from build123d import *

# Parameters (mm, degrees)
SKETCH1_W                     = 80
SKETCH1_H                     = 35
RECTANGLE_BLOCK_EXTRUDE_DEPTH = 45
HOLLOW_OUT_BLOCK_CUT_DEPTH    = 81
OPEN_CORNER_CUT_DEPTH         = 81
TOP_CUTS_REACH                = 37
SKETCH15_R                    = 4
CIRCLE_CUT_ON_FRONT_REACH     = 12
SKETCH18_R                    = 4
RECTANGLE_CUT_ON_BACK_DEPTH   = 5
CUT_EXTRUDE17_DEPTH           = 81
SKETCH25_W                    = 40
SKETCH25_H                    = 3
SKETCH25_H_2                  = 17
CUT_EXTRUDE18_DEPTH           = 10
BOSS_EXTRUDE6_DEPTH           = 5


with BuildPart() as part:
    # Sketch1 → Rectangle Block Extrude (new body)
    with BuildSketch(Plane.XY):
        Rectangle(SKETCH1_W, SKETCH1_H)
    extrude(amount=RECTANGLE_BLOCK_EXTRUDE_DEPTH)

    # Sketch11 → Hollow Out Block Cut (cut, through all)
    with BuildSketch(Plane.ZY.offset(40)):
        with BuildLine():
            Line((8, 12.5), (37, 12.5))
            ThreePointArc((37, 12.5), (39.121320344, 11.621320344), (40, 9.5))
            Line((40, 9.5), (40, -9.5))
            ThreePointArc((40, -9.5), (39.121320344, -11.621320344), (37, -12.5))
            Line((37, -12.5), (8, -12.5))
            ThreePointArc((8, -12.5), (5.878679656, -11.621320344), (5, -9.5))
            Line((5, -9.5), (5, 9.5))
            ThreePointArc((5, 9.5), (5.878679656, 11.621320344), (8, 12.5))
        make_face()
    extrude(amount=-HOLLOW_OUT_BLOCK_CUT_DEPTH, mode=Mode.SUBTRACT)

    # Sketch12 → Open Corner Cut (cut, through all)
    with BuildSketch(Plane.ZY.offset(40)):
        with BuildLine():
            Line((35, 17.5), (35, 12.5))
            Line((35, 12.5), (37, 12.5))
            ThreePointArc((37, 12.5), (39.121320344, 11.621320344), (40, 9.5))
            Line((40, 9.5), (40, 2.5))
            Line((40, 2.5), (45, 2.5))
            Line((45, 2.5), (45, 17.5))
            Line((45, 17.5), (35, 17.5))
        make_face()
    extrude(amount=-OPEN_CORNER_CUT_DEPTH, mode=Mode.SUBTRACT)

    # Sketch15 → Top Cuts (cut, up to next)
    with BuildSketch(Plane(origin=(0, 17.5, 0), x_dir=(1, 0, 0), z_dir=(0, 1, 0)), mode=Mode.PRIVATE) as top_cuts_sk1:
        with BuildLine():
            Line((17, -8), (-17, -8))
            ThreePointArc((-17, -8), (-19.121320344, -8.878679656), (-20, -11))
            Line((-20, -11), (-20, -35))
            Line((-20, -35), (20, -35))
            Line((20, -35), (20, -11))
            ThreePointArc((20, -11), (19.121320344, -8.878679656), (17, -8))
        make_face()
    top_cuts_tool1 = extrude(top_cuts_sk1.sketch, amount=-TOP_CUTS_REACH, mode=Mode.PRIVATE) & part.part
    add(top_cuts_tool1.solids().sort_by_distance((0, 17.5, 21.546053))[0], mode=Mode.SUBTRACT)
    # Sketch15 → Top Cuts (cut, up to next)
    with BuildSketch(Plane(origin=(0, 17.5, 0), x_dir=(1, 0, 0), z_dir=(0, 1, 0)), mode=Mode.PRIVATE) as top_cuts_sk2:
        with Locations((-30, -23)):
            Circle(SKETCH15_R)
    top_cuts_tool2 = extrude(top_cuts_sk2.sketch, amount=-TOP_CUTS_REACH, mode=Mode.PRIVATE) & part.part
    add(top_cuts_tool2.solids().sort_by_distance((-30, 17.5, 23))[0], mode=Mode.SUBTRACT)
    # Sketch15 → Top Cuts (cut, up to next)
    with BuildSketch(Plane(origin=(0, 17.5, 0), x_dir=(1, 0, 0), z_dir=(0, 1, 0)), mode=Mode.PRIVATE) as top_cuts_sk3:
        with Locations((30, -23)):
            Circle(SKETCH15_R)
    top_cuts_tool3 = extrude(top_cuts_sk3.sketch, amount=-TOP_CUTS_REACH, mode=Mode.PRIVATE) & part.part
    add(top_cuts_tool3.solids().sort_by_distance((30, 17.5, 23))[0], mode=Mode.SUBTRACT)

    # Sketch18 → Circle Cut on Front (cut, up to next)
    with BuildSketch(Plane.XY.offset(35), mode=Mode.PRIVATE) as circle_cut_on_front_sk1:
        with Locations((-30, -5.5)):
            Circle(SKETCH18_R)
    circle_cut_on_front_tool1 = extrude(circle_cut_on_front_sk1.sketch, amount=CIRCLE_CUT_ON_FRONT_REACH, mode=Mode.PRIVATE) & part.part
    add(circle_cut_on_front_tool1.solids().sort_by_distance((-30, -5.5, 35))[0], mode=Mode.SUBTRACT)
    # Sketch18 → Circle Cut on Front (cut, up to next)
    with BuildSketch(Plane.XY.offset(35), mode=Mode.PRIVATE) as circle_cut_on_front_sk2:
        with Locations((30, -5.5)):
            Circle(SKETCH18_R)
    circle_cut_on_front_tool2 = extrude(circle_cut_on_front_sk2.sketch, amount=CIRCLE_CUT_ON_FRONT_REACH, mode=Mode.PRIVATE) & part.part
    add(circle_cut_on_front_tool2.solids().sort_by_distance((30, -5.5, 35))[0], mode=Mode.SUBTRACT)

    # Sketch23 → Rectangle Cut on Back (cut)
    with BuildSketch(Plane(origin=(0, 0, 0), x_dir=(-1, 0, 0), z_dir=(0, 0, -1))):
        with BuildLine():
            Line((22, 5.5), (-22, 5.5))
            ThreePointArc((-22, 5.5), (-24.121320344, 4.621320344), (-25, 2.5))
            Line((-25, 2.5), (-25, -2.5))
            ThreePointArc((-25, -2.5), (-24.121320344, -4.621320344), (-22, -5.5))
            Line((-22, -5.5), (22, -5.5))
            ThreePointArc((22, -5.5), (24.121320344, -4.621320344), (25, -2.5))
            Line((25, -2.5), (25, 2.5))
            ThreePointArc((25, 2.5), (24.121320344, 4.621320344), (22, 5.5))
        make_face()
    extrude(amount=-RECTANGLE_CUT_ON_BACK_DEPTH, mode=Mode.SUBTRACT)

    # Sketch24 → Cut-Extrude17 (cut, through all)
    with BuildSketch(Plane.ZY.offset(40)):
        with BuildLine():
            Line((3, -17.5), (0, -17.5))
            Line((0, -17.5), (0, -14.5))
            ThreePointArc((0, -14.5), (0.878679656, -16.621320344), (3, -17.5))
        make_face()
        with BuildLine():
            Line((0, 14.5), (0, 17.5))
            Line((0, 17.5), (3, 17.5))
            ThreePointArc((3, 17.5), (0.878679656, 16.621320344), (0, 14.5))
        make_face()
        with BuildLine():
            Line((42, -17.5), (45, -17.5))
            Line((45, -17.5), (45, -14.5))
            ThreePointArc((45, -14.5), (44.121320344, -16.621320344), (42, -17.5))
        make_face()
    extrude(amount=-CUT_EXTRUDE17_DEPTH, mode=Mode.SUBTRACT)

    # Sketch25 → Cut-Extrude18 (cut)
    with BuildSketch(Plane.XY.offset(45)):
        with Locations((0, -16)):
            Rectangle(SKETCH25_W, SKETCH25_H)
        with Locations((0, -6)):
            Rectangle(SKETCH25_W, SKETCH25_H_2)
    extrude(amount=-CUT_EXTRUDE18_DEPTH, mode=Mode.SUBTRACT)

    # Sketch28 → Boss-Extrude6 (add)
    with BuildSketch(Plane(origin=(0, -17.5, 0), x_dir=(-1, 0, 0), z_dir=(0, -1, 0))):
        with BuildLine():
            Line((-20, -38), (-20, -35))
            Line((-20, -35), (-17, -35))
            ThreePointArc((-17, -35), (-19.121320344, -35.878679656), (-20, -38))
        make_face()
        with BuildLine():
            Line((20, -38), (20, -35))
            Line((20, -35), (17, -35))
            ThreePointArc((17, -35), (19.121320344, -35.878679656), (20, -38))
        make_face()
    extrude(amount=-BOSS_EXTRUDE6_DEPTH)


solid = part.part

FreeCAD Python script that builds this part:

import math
import FreeCAD as App
import Part
import Sketcher
from FreeCAD import Vector
Q = App.Units.Quantity

doc = App.newDocument("Part")
body = doc.addObject("PartDesign::Body", "Body")

sketch1 = body.newObject("Sketcher::SketchObject", "Sketch")
sketch1.AttachmentSupport = (doc.getObject("XY_Plane"), [""])
sketch1.MapMode = "FlatFace"
sketch1.addGeometry([
    Part.LineSegment(Vector(-40, 17.5, 0), Vector(-40, -17.5, 0)),
    Part.LineSegment(Vector(-40, -17.5, 0), Vector(40, -17.5, 0)),
    Part.LineSegment(Vector(40, -17.5, 0), Vector(40, 17.5, 0)),
    Part.LineSegment(Vector(40, 17.5, 0), Vector(-40, 17.5, 0)),
], False)
sketch1.addConstraint([
    Sketcher.Constraint("Coincident", 0, 2, 1, 1),
    Sketcher.Constraint("Coincident", 1, 2, 2, 1),
    Sketcher.Constraint("Coincident", 2, 2, 3, 1),
    Sketcher.Constraint("Coincident", 3, 2, 0, 1),
    Sketcher.Constraint("Vertical", 0),
    Sketcher.Constraint("Horizontal", 1),
    Sketcher.Constraint("Vertical", 2),
    Sketcher.Constraint("Horizontal", 3),
    Sketcher.Constraint("Symmetric", 0, 2, 2, 2, -1, 1),
    Sketcher.Constraint("DistanceX", 1, 1, 1, 2, Q("80 mm")),
    Sketcher.Constraint("DistanceY", 0, 2, 0, 1, Q("35 mm")),
])
pad1 = body.newObject("PartDesign::Pad", "Pad")
pad1.Profile = sketch1
pad1.Length = 45

sketch2 = body.newObject("Sketcher::SketchObject", "Sketch001")
sketch2.AttachmentSupport = (doc.getObject("YZ_Plane"), [""])
sketch2.MapMode = "FlatFace"
sketch2.AttachmentOffset = App.Placement(Vector(0, 0, -40), App.Rotation())
sketch2.addGeometry([
    Part.LineSegment(Vector(12.5, 37, 0), Vector(12.5, 8, 0)),
    Part.ArcOfCircle(Part.Circle(Vector(9.5, 8, 0), Vector(0, 0, 1), 3), math.radians(-90), math.radians(0)),
    Part.LineSegment(Vector(9.5, 5, 0), Vector(-9.5, 5, 0)),
    Part.ArcOfCircle(Part.Circle(Vector(-9.5, 8, 0), Vector(0, 0, 1), 3), math.radians(180), math.radians(270)),
    Part.LineSegment(Vector(-12.5, 8, 0), Vector(-12.5, 37, 0)),
    Part.ArcOfCircle(Part.Circle(Vector(-9.5, 37, 0), Vector(0, 0, 1), 3), math.radians(90), math.radians(180)),
    Part.LineSegment(Vector(-9.5, 40, 0), Vector(9.5, 40, 0)),
    Part.ArcOfCircle(Part.Circle(Vector(9.5, 37, 0), Vector(0, 0, 1), 3), math.radians(0), math.radians(90)),
], False)
sketch2.addConstraint([
    Sketcher.Constraint("Tangent", 0, 2, 1, 2),
    Sketcher.Constraint("Tangent", 1, 1, 2, 1),
    Sketcher.Constraint("Tangent", 2, 2, 3, 2),
    Sketcher.Constraint("Tangent", 3, 1, 4, 1),
    Sketcher.Constraint("Tangent", 4, 2, 5, 2),
    Sketcher.Constraint("Tangent", 5, 1, 6, 1),
    Sketcher.Constraint("Tangent", 6, 2, 7, 2),
    Sketcher.Constraint("Tangent", 7, 1, 0, 1),
    Sketcher.Constraint("Vertical", 0),
    Sketcher.Constraint("Horizontal", 2),
    Sketcher.Constraint("Vertical", 4),
    Sketcher.Constraint("Horizontal", 6),
    Sketcher.Constraint("Equal", 1, 3),
    Sketcher.Constraint("Equal", 3, 5),
    Sketcher.Constraint("Equal", 5, 7),
    Sketcher.Constraint("Radius", 1, Q("3 mm")),
    Sketcher.Constraint("DistanceX", 2, 2, 2, 1, Q("19 mm")),
    Sketcher.Constraint("DistanceY", 0, 2, 0, 1, Q("29 mm")),
    Sketcher.Constraint("DistanceY", -1, 1, 1, 3, Q("8 mm")),
    Sketcher.Constraint("DistanceX", -1, 1, 1, 3, Q("9.5 mm")),
])
pocket1 = body.newObject("PartDesign::Pocket", "Pocket")
pocket1.Profile = sketch2
pocket1.Type = "ThroughAll"
pocket1.Reversed = True

sketch3 = body.newObject("Sketcher::SketchObject", "Sketch002")
sketch3.AttachmentSupport = (doc.getObject("YZ_Plane"), [""])
sketch3.MapMode = "FlatFace"
sketch3.AttachmentOffset = App.Placement(Vector(0, 0, -40), App.Rotation())
sketch3.addGeometry([
    Part.LineSegment(Vector(17.5, 35, 0), Vector(12.5, 35, 0)),
    Part.LineSegment(Vector(12.5, 35, 0), Vector(12.5, 37, 0)),
    Part.ArcOfCircle(Part.Circle(Vector(9.5, 37, 0), Vector(0, 0, 1), 3), math.radians(0), math.radians(90)),
    Part.LineSegment(Vector(9.5, 40, 0), Vector(2.5, 40, 0)),
    Part.LineSegment(Vector(2.5, 40, 0), Vector(2.5, 45, 0)),
    Part.LineSegment(Vector(2.5, 45, 0), Vector(17.5, 45, 0)),
    Part.LineSegment(Vector(17.5, 45, 0), Vector(17.5, 35, 0)),
], False)
sketch3.addConstraint([
    Sketcher.Constraint("Coincident", 0, 2, 1, 1),
    Sketcher.Constraint("Tangent", 1, 2, 2, 1),
    Sketcher.Constraint("Tangent", 2, 2, 3, 1),
    Sketcher.Constraint("Coincident", 3, 2, 4, 1),
    Sketcher.Constraint("Coincident", 4, 2, 5, 1),
    Sketcher.Constraint("Coincident", 5, 2, 6, 1),
    Sketcher.Constraint("Coincident", 6, 2, 0, 1),
    Sketcher.Constraint("Horizontal", 0),
    Sketcher.Constraint("Vertical", 1),
    Sketcher.Constraint("Horizontal", 3),
    Sketcher.Constraint("Vertical", 4),
    Sketcher.Constraint("Horizontal", 5),
    Sketcher.Constraint("Vertical", 6),
    Sketcher.Constraint("Equal", 0, 4),
    Sketcher.Constraint("Radius", 2, Q("3 mm")),
    Sketcher.Constraint("DistanceX", 0, 2, 0, 1, Q("5 mm")),
    Sketcher.Constraint("DistanceX", 3, 2, 3, 1, Q("7 mm")),
    Sketcher.Constraint("DistanceY", 1, 1, 1, 2, Q("2 mm")),
    Sketcher.Constraint("DistanceY", -1, 1, 2, 3, Q("37 mm")),
    Sketcher.Constraint("DistanceX", -1, 1, 2, 3, Q("9.5 mm")),
])
pocket2 = body.newObject("PartDesign::Pocket", "Pocket001")
pocket2.Profile = sketch3
pocket2.Type = "ThroughAll"
pocket2.Reversed = True

sketch4 = body.newObject("Sketcher::SketchObject", "Sketch003")
sketch4.AttachmentSupport = (doc.getObject("XZ_Plane"), [""])
sketch4.MapMode = "FlatFace"
sketch4.AttachmentOffset = App.Placement(Vector(0, 0, -17.5), App.Rotation())
sketch4.addGeometry([
    Part.LineSegment(Vector(17, 8, 0), Vector(-17, 8, 0)),
    Part.ArcOfCircle(Part.Circle(Vector(-17, 11, 0), Vector(0, 0, 1), 3), math.radians(180), math.radians(270)),
    Part.LineSegment(Vector(-20, 11, 0), Vector(-20, 35, 0)),
    Part.LineSegment(Vector(-20, 35, 0), Vector(20, 35, 0)),
    Part.LineSegment(Vector(20, 35, 0), Vector(20, 11, 0)),
    Part.ArcOfCircle(Part.Circle(Vector(17, 11, 0), Vector(0, 0, 1), 3), math.radians(-90), math.radians(0)),
], False)
sketch4.addConstraint([
    Sketcher.Constraint("Tangent", 0, 2, 1, 2),
    Sketcher.Constraint("Tangent", 1, 1, 2, 1),
    Sketcher.Constraint("Coincident", 2, 2, 3, 1),
    Sketcher.Constraint("Coincident", 3, 2, 4, 1),
    Sketcher.Constraint("Tangent", 4, 2, 5, 2),
    Sketcher.Constraint("Tangent", 5, 1, 0, 1),
    Sketcher.Constraint("Horizontal", 0),
    Sketcher.Constraint("Vertical", 2),
    Sketcher.Constraint("Horizontal", 3),
    Sketcher.Constraint("Vertical", 4),
    Sketcher.Constraint("Equal", 1, 5),
    Sketcher.Constraint("Radius", 1, Q("3 mm")),
    Sketcher.Constraint("DistanceX", 0, 2, 0, 1, Q("34 mm")),
    Sketcher.Constraint("DistanceY", 2, 1, 2, 2, Q("24 mm")),
    Sketcher.Constraint("DistanceX", 1, 3, -1, 1, Q("17 mm")),
    Sketcher.Constraint("DistanceY", -1, 1, 1, 3, Q("11 mm")),
])
pocket3 = body.newObject("PartDesign::Pocket", "Pocket002")
pocket3.Profile = sketch4
pocket3.Type = "UpToFirst"
pocket3.Reversed = True

sketch5 = body.newObject("Sketcher::SketchObject", "Sketch004")
sketch5.AttachmentSupport = (doc.getObject("XZ_Plane"), [""])
sketch5.MapMode = "FlatFace"
sketch5.AttachmentOffset = App.Placement(Vector(0, 0, -17.5), App.Rotation())
sketch5.addGeometry(Part.Circle(Vector(-30, 23, 0), Vector(0, 0, 1), 4), False)
sketch5.addConstraint([
    Sketcher.Constraint("Diameter", 0, Q("8 mm")),
    Sketcher.Constraint("DistanceX", 0, 3, -1, 1, Q("30 mm")),
    Sketcher.Constraint("DistanceY", -1, 1, 0, 3, Q("23 mm")),
])
pocket4 = body.newObject("PartDesign::Pocket", "Pocket003")
pocket4.Profile = sketch5
pocket4.Type = "UpToFirst"
pocket4.Reversed = True

sketch6 = body.newObject("Sketcher::SketchObject", "Sketch005")
sketch6.AttachmentSupport = (doc.getObject("XZ_Plane"), [""])
sketch6.MapMode = "FlatFace"
sketch6.AttachmentOffset = App.Placement(Vector(0, 0, -17.5), App.Rotation())
sketch6.addGeometry(Part.Circle(Vector(30, 23, 0), Vector(0, 0, 1), 4), False)
sketch6.addConstraint([
    Sketcher.Constraint("Diameter", 0, Q("8 mm")),
    Sketcher.Constraint("DistanceX", -1, 1, 0, 3, Q("30 mm")),
    Sketcher.Constraint("DistanceY", -1, 1, 0, 3, Q("23 mm")),
])
pocket5 = body.newObject("PartDesign::Pocket", "Pocket004")
pocket5.Profile = sketch6
pocket5.Type = "UpToFirst"
pocket5.Reversed = True

sketch7 = body.newObject("Sketcher::SketchObject", "Sketch006")
sketch7.AttachmentSupport = (doc.getObject("XY_Plane"), [""])
sketch7.MapMode = "FlatFace"
sketch7.AttachmentOffset = App.Placement(Vector(0, 0, 35), App.Rotation())
sketch7.addGeometry(Part.Circle(Vector(-30, -5.5, 0), Vector(0, 0, 1), 4), False)
sketch7.addConstraint([
    Sketcher.Constraint("Diameter", 0, Q("8 mm")),
    Sketcher.Constraint("DistanceX", 0, 3, -1, 1, Q("30 mm")),
    Sketcher.Constraint("DistanceY", 0, 3, -1, 1, Q("5.5 mm")),
])
pocket6 = body.newObject("PartDesign::Pocket", "Pocket005")
pocket6.Profile = sketch7
pocket6.Length = 10
pocket6.Reversed = True

sketch8 = body.newObject("Sketcher::SketchObject", "Sketch007")
sketch8.AttachmentSupport = (doc.getObject("XY_Plane"), [""])
sketch8.MapMode = "FlatFace"
sketch8.AttachmentOffset = App.Placement(Vector(0, 0, 35), App.Rotation())
sketch8.addGeometry(Part.Circle(Vector(30, -5.5, 0), Vector(0, 0, 1), 4), False)
sketch8.addConstraint([
    Sketcher.Constraint("Diameter", 0, Q("8 mm")),
    Sketcher.Constraint("DistanceX", -1, 1, 0, 3, Q("30 mm")),
    Sketcher.Constraint("DistanceY", 0, 3, -1, 1, Q("5.5 mm")),
])
pocket7 = body.newObject("PartDesign::Pocket", "Pocket006")
pocket7.Profile = sketch8
pocket7.Length = 10
pocket7.Reversed = True

sketch9 = body.newObject("Sketcher::SketchObject", "Sketch008")
sketch9.AttachmentSupport = (doc.getObject("XY_Plane"), [""])
sketch9.MapMode = "FlatFace"
sketch9.addGeometry([
    Part.LineSegment(Vector(-22, 5.5, 0), Vector(22, 5.5, 0)),
    Part.ArcOfCircle(Part.Circle(Vector(22, 2.5, 0), Vector(0, 0, 1), 3), math.radians(0), math.radians(90)),
    Part.LineSegment(Vector(25, 2.5, 0), Vector(25, -2.5, 0)),
    Part.ArcOfCircle(Part.Circle(Vector(22, -2.5, 0), Vector(0, 0, 1), 3), math.radians(-90), math.radians(0)),
    Part.LineSegment(Vector(22, -5.5, 0), Vector(-22, -5.5, 0)),
    Part.ArcOfCircle(Part.Circle(Vector(-22, -2.5, 0), Vector(0, 0, 1), 3), math.radians(180), math.radians(270)),
    Part.LineSegment(Vector(-25, -2.5, 0), Vector(-25, 2.5, 0)),
    Part.ArcOfCircle(Part.Circle(Vector(-22, 2.5, 0), Vector(0, 0, 1), 3), math.radians(90), math.radians(180)),
], False)
sketch9.addConstraint([
    Sketcher.Constraint("Tangent", 0, 2, 1, 2),
    Sketcher.Constraint("Tangent", 1, 1, 2, 1),
    Sketcher.Constraint("Tangent", 2, 2, 3, 2),
    Sketcher.Constraint("Tangent", 3, 1, 4, 1),
    Sketcher.Constraint("Tangent", 4, 2, 5, 2),
    Sketcher.Constraint("Tangent", 5, 1, 6, 1),
    Sketcher.Constraint("Tangent", 6, 2, 7, 2),
    Sketcher.Constraint("Tangent", 7, 1, 0, 1),
    Sketcher.Constraint("Horizontal", 0),
    Sketcher.Constraint("Vertical", 2),
    Sketcher.Constraint("Horizontal", 4),
    Sketcher.Constraint("Vertical", 6),
    Sketcher.Constraint("Equal", 1, 3),
    Sketcher.Constraint("Equal", 3, 5),
    Sketcher.Constraint("Equal", 5, 7),
    Sketcher.Constraint("Symmetric", 1, 3, 5, 3, -1, 1),
    Sketcher.Constraint("Radius", 1, Q("3 mm")),
    Sketcher.Constraint("DistanceX", 0, 1, 0, 2, Q("44 mm")),
    Sketcher.Constraint("DistanceY", 2, 2, 2, 1, Q("5 mm")),
])
pocket8 = body.newObject("PartDesign::Pocket", "Pocket007")
pocket8.Profile = sketch9
pocket8.Length = 5
pocket8.Reversed = True

sketch10 = body.newObject("Sketcher::SketchObject", "Sketch009")
sketch10.AttachmentSupport = (doc.getObject("YZ_Plane"), [""])
sketch10.MapMode = "FlatFace"
sketch10.AttachmentOffset = App.Placement(Vector(0, 0, -40), App.Rotation())
sketch10.addGeometry([
    Part.LineSegment(Vector(-17.5, 0, 0), Vector(-17.5, 3, 0)),
    Part.ArcOfCircle(Part.Circle(Vector(-14.5, 3, 0), Vector(0, 0, 1), 3), math.radians(180), math.radians(270)),
    Part.LineSegment(Vector(-14.5, 0, 0), Vector(-17.5, 0, 0)),
    Part.LineSegment(Vector(17.5, 0, 0), Vector(14.5, 0, 0)),
    Part.ArcOfCircle(Part.Circle(Vector(14.5, 3, 0), Vector(0, 0, 1), 3), math.radians(-90), math.radians(0)),
    Part.LineSegment(Vector(17.5, 3, 0), Vector(17.5, 0, 0)),
    Part.LineSegment(Vector(-17.5, 42, 0), Vector(-17.5, 45, 0)),
    Part.LineSegment(Vector(-17.5, 45, 0), Vector(-14.5, 45, 0)),
    Part.ArcOfCircle(Part.Circle(Vector(-14.5, 42, 0), Vector(0, 0, 1), 3), math.radians(90), math.radians(180)),
], False)
sketch10.addConstraint([
    Sketcher.Constraint("Tangent", 0, 2, 1, 1),
    Sketcher.Constraint("Tangent", 1, 2, 2, 1),
    Sketcher.Constraint("Coincident", 2, 2, 0, 1),
    Sketcher.Constraint("Tangent", 3, 2, 4, 1),
    Sketcher.Constraint("Tangent", 4, 2, 5, 1),
    Sketcher.Constraint("Coincident", 5, 2, 3, 1),
    Sketcher.Constraint("Coincident", 6, 2, 7, 1),
    Sketcher.Constraint("Tangent", 7, 2, 8, 1),
    Sketcher.Constraint("Tangent", 8, 2, 6, 1),
    Sketcher.Constraint("Vertical", 0),
    Sketcher.Constraint("Horizontal", 2),
    Sketcher.Constraint("Horizontal", 3),
    Sketcher.Constraint("Vertical", 5),
    Sketcher.Constraint("Vertical", 6),
    Sketcher.Constraint("Horizontal", 7),
    Sketcher.Constraint("Equal", 1, 4),
    Sketcher.Constraint("Equal", 4, 8),
    Sketcher.Constraint("Symmetric", 1, 2, 3, 2, -1, 1),
    Sketcher.Constraint("PointOnObject", 1, 2, -1),
    Sketcher.Constraint("Vertical", 1, 3, 8, 3),
    Sketcher.Constraint("Radius", 1, Q("3 mm")),
    Sketcher.Constraint("DistanceY", -1, 1, 8, 3, Q("42 mm")),
    Sketcher.Constraint("DistanceX", 1, 3, 4, 3, Q("29 mm")),
])
pocket9 = body.newObject("PartDesign::Pocket", "Pocket008")
pocket9.Profile = sketch10
pocket9.Type = "ThroughAll"
pocket9.Reversed = True

sketch11 = body.newObject("Sketcher::SketchObject", "Sketch010")
sketch11.AttachmentSupport = (doc.getObject("XY_Plane"), [""])
sketch11.MapMode = "FlatFace"
sketch11.AttachmentOffset = App.Placement(Vector(0, 0, 45), App.Rotation())
sketch11.addGeometry([
    Part.LineSegment(Vector(-20, -17.5, 0), Vector(20, -17.5, 0)),
    Part.LineSegment(Vector(20, -17.5, 0), Vector(20, 2.5, 0)),
    Part.LineSegment(Vector(20, 2.5, 0), Vector(-20, 2.5, 0)),
    Part.LineSegment(Vector(-20, 2.5, 0), Vector(-20, -17.5, 0)),
], False)
sketch11.addConstraint([
    Sketcher.Constraint("Coincident", 0, 2, 1, 1),
    Sketcher.Constraint("Coincident", 1, 2, 2, 1),
    Sketcher.Constraint("Coincident", 2, 2, 3, 1),
    Sketcher.Constraint("Coincident", 3, 2, 0, 1),
    Sketcher.Constraint("Horizontal", 0),
    Sketcher.Constraint("Vertical", 1),
    Sketcher.Constraint("Horizontal", 2),
    Sketcher.Constraint("Vertical", 3),
    Sketcher.Constraint("DistanceX", 0, 1, 0, 2, Q("40 mm")),
    Sketcher.Constraint("DistanceY", 1, 1, 1, 2, Q("20 mm")),
    Sketcher.Constraint("DistanceX", -1, 1, 0, 2, Q("20 mm")),
    Sketcher.Constraint("DistanceY", 0, 2, -1, 1, Q("17.5 mm")),
])
pocket10 = body.newObject("PartDesign::Pocket", "Pocket009")
pocket10.Profile = sketch11
pocket10.Length = 10

sketch12 = body.newObject("Sketcher::SketchObject", "Sketch011")
sketch12.AttachmentSupport = (doc.getObject("XZ_Plane"), [""])
sketch12.MapMode = "FlatFace"
sketch12.AttachmentOffset = App.Placement(Vector(0, 0, 17.5), App.Rotation())
sketch12.addGeometry([
    Part.LineSegment(Vector(20, 35, 0), Vector(20, 38, 0)),
    Part.ArcOfCircle(Part.Circle(Vector(17, 38, 0), Vector(0, 0, 1), 3), math.radians(-90), math.radians(0)),
    Part.LineSegment(Vector(17, 35, 0), Vector(20, 35, 0)),
    Part.LineSegment(Vector(-20, 38, 0), Vector(-20, 35, 0)),
    Part.LineSegment(Vector(-20, 35, 0), Vector(-17, 35, 0)),
    Part.ArcOfCircle(Part.Circle(Vector(-17, 38, 0), Vector(0, 0, 1), 3), math.radians(180), math.radians(270)),
], False)
sketch12.addConstraint([
    Sketcher.Constraint("Tangent", 0, 2, 1, 2),
    Sketcher.Constraint("Tangent", 1, 1, 2, 1),
    Sketcher.Constraint("Coincident", 2, 2, 0, 1),
    Sketcher.Constraint("Coincident", 3, 2, 4, 1),
    Sketcher.Constraint("Tangent", 4, 2, 5, 2),
    Sketcher.Constraint("Tangent", 5, 1, 3, 1),
    Sketcher.Constraint("Vertical", 0),
    Sketcher.Constraint("Horizontal", 2),
    Sketcher.Constraint("Vertical", 3),
    Sketcher.Constraint("Horizontal", 4),
    Sketcher.Constraint("Equal", 1, 5),
    Sketcher.Constraint("Symmetric", 1, 3, 5, 3, -2),
    Sketcher.Constraint("Radius", 1, Q("3 mm")),
    Sketcher.Constraint("DistanceX", -1, 1, 1, 3, Q("17 mm")),
    Sketcher.Constraint("DistanceY", -1, 1, 1, 3, Q("38 mm")),
])
pad2 = body.newObject("PartDesign::Pad", "Pad001")
pad2.Profile = sketch12
pad2.Length = 5
pad2.Reversed = True

doc.recompute()
